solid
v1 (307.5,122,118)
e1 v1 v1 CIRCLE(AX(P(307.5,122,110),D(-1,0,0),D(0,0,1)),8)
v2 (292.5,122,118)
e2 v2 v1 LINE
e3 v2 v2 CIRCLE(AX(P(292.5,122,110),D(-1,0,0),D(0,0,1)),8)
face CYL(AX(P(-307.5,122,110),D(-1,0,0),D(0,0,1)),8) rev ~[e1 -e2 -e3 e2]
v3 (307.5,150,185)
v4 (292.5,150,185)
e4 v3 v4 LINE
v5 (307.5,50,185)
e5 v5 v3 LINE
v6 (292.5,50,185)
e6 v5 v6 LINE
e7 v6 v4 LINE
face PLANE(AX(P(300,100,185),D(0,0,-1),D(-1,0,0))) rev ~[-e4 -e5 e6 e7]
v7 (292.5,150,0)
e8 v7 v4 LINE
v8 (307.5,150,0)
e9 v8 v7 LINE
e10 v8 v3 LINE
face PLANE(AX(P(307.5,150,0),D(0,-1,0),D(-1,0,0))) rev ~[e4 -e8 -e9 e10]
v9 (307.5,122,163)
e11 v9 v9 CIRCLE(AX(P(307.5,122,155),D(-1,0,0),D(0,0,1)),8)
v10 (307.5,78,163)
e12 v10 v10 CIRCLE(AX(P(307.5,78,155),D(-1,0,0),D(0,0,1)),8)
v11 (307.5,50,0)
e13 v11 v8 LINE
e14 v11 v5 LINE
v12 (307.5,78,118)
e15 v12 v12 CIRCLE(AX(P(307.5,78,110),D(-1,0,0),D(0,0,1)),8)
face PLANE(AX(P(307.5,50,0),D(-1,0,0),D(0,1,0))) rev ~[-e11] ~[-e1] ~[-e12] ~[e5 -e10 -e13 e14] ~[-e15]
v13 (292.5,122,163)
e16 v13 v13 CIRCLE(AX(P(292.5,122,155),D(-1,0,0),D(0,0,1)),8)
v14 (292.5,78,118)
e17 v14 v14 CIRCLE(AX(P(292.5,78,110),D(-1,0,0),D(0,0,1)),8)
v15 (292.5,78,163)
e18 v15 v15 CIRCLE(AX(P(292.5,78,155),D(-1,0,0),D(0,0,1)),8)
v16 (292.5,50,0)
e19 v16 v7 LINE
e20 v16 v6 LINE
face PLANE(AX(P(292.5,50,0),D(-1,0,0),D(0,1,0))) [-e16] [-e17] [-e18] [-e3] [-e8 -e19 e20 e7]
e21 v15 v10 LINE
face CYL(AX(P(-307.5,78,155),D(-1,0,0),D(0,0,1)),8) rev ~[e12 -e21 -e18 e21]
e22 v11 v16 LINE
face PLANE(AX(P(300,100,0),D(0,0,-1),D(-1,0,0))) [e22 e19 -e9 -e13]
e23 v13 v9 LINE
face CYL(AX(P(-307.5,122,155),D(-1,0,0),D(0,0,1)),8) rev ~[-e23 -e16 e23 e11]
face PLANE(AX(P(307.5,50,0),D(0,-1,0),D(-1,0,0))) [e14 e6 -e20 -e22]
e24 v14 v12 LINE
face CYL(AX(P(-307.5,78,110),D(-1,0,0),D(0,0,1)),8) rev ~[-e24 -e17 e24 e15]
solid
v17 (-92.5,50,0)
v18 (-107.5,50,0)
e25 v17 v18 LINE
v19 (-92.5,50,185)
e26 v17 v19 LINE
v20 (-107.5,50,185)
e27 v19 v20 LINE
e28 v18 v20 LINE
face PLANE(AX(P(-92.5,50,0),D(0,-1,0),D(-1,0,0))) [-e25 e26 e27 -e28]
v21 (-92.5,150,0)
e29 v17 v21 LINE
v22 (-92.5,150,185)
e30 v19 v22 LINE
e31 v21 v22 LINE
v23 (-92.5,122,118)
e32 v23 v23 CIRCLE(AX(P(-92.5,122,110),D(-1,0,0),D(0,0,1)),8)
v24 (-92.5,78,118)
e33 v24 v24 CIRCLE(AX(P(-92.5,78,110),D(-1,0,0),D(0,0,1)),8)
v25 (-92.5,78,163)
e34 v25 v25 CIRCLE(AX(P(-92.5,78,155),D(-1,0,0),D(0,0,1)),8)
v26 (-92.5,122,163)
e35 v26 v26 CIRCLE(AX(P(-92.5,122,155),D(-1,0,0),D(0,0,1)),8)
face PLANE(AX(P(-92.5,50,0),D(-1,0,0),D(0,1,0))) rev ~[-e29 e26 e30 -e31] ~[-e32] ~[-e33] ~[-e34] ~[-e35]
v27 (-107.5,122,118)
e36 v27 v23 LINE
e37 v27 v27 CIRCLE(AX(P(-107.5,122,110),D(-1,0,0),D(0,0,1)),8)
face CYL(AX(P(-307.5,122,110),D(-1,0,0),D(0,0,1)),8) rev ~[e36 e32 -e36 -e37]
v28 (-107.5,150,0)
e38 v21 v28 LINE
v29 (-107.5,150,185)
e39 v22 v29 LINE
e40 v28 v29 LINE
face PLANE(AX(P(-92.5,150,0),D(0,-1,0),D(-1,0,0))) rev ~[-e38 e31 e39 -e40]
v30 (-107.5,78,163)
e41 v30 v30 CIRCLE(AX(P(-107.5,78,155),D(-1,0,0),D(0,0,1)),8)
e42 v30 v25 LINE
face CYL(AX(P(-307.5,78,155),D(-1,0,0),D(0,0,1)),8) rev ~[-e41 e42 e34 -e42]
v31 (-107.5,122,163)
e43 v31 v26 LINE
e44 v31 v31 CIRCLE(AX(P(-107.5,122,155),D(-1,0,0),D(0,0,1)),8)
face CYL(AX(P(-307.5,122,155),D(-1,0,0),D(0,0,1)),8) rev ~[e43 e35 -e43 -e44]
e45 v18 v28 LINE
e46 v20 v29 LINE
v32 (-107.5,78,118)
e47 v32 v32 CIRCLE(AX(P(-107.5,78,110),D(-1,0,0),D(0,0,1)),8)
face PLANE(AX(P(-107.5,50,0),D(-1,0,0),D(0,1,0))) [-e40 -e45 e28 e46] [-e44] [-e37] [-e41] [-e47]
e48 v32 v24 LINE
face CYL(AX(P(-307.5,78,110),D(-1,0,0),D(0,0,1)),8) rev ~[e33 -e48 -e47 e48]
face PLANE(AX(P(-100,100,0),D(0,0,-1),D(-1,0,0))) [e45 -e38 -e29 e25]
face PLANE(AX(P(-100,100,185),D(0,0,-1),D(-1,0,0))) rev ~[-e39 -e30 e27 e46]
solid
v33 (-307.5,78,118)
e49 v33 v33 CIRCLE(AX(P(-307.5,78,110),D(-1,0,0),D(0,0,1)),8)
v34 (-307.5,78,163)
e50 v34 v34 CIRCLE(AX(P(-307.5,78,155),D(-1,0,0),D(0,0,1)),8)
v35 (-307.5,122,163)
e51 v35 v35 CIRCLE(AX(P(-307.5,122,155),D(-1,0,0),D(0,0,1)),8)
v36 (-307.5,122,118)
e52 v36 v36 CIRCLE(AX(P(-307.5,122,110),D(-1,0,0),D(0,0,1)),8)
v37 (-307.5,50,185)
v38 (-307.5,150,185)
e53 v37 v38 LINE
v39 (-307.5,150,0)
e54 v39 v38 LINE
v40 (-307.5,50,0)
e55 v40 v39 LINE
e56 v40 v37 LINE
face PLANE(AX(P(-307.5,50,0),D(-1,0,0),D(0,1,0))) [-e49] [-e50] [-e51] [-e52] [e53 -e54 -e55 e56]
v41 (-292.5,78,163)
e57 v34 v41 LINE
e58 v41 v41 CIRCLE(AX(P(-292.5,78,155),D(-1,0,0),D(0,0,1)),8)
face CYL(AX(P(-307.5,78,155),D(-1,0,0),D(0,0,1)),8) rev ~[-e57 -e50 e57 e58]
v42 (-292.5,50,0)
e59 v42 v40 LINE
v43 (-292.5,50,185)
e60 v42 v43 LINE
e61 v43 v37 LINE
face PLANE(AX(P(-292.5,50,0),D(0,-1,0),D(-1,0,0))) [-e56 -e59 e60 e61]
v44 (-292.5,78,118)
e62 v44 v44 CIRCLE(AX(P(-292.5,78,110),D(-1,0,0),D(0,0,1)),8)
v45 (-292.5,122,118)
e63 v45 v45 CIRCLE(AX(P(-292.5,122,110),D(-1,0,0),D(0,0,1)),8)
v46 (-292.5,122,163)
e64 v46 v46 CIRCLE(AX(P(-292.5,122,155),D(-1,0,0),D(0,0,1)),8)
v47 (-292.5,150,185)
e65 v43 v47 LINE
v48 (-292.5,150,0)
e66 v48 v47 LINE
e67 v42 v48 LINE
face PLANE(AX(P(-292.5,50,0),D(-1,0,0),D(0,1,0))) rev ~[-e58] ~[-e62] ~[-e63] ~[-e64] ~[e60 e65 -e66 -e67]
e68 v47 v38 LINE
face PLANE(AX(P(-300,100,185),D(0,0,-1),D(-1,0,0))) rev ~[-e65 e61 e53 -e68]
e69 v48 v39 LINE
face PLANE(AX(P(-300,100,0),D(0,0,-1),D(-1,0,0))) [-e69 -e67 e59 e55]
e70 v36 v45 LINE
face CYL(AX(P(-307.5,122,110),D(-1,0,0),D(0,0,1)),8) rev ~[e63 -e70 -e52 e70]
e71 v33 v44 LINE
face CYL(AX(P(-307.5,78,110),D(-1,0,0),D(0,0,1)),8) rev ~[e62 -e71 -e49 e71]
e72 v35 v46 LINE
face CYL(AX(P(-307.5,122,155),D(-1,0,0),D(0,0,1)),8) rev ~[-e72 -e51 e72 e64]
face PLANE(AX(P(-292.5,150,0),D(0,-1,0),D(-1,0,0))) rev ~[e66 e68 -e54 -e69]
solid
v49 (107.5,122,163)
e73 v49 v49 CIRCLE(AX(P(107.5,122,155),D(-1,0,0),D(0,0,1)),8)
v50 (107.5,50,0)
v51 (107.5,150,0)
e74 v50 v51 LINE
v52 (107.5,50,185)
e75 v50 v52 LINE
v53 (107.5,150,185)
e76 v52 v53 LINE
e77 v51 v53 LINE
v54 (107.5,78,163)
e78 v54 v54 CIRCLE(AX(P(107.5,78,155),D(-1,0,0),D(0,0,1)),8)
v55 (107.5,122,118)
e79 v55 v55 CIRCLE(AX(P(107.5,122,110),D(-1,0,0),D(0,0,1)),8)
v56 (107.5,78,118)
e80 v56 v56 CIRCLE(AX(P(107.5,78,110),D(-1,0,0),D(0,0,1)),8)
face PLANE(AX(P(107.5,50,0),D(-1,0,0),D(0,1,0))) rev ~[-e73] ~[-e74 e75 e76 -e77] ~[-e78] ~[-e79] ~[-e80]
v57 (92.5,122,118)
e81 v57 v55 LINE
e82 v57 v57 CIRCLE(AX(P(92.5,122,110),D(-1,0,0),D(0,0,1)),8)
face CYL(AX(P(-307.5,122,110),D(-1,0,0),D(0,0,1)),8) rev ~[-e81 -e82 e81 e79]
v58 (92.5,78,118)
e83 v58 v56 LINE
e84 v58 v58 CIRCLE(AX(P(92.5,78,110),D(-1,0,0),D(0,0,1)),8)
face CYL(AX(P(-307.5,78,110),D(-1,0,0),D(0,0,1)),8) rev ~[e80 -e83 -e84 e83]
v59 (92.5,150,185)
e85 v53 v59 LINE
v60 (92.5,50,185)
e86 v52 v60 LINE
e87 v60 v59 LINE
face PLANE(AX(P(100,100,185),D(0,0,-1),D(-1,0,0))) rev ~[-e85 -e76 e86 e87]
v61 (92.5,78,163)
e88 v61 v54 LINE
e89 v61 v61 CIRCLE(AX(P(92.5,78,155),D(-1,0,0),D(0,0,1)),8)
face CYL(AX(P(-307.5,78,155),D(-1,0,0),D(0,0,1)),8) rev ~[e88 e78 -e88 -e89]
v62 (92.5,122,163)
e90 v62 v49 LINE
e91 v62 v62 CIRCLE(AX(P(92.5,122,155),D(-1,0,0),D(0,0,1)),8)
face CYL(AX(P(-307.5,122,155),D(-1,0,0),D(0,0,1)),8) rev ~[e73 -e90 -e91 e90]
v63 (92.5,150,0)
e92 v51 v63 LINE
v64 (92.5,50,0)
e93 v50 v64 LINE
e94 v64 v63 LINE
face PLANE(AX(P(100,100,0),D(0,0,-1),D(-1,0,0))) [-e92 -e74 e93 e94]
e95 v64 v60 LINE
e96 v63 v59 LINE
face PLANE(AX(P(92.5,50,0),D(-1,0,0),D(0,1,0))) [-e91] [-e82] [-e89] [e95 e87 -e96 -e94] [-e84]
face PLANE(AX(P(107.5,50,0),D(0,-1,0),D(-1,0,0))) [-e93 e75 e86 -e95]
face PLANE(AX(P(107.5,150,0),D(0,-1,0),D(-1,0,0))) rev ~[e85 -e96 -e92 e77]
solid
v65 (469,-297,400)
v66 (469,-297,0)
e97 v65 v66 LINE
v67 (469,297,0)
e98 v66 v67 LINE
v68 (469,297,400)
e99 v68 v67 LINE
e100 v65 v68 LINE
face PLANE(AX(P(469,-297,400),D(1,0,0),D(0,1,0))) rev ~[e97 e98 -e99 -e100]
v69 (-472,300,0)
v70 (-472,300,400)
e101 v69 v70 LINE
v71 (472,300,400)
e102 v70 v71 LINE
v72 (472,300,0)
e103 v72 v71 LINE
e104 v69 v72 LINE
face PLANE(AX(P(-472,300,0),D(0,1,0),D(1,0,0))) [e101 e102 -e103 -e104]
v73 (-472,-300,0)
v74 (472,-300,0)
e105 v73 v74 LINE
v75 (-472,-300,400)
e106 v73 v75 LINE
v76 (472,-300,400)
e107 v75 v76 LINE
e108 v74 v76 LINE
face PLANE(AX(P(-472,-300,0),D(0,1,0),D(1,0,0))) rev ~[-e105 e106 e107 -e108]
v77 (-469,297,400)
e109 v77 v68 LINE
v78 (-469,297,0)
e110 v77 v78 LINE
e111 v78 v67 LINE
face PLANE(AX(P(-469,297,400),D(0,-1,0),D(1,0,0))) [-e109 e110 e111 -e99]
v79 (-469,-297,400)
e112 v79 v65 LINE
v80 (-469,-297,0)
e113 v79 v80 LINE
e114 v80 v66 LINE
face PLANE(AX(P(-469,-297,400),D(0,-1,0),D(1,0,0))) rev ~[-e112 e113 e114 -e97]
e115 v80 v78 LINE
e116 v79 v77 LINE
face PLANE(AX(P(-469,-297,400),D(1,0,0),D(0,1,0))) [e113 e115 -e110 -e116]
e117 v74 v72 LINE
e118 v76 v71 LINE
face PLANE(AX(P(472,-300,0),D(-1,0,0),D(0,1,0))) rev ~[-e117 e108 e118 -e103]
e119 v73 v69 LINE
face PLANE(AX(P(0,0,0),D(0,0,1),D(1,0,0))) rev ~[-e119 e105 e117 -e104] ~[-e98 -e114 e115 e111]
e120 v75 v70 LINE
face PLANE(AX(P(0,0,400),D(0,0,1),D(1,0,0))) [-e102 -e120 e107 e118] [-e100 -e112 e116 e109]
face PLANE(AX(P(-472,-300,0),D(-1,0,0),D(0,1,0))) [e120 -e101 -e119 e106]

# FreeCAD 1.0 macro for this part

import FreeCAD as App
import Part
import Sketcher

V = App.Vector

doc = App.newDocument("Part")
body = doc.addObject("PartDesign::Body", "Body")

sketch1 = doc.addObject("Sketcher::SketchObject", "Sketch")
body.addObject(sketch1)
sketch1.AttachmentSupport = (doc.XY_Plane, [""])
sketch1.MapMode = "FlatFace"
sketch1.addGeometry([
    Part.LineSegment(V(-472, 300, 0), V(-472, -300, 0)),
    Part.LineSegment(V(-472, -300, 0), V(472, -300, 0)),
    Part.LineSegment(V(472, -300, 0), V(472, 300, 0)),
    Part.LineSegment(V(472, 300, 0), V(-472, 300, 0)),
], False)
sketch1.addConstraint([
    Sketcher.Constraint("Coincident", 0, 2, 1, 1),
    Sketcher.Constraint("Coincident", 1, 2, 2, 1),
    Sketcher.Constraint("Coincident", 2, 2, 3, 1),
    Sketcher.Constraint("Coincident", 3, 2, 0, 1),
    Sketcher.Constraint("Vertical", 0),
    Sketcher.Constraint("Horizontal", 1),
    Sketcher.Constraint("Vertical", 2),
    Sketcher.Constraint("Horizontal", 3),
    Sketcher.Constraint("Symmetric", 0, 2, 2, 2, -1, 1),
    Sketcher.Constraint("DistanceX", 1, 1, 1, 2, 944.0),
    Sketcher.Constraint("DistanceY", 0, 2, 0, 1, 600.0),
])
pad1 = doc.addObject("PartDesign::Pad", "Pad")
body.addObject(pad1)
pad1.Profile = sketch1
pad1.Length = 400

sketch2 = doc.addObject("Sketcher::SketchObject", "Sketch001")
body.addObject(sketch2)
sketch2.AttachmentSupport = (doc.XY_Plane, [""])
sketch2.MapMode = "FlatFace"
sketch2.AttachmentOffset = App.Placement(V(0, 0, 400), App.Rotation())
sketch2.addGeometry([
    Part.LineSegment(V(-469, 297, 0), V(-469, -297, 0)),
    Part.LineSegment(V(-469, -297, 0), V(469, -297, 0)),
    Part.LineSegment(V(469, -297, 0), V(469, 297, 0)),
    Part.LineSegment(V(469, 297, 0), V(-469, 297, 0)),
], False)
sketch2.addConstraint([
    Sketcher.Constraint("Coincident", 0, 2, 1, 1),
    Sketcher.Constraint("Coincident", 1, 2, 2, 1),
    Sketcher.Constraint("Coincident", 2, 2, 3, 1),
    Sketcher.Constraint("Coincident", 3, 2, 0, 1),
    Sketcher.Constraint("Vertical", 0),
    Sketcher.Constraint("Horizontal", 1),
    Sketcher.Constraint("Vertical", 2),
    Sketcher.Constraint("Horizontal", 3),
    Sketcher.Constraint("Symmetric", 0, 2, 2, 2, -1, 1),
    Sketcher.Constraint("DistanceX", 1, 1, 1, 2, 938.0),
    Sketcher.Constraint("DistanceY", 0, 2, 0, 1, 594.0),
])
pocket1 = doc.addObject("PartDesign::Pocket", "Pocket")
body.addObject(pocket1)
pocket1.Profile = sketch2
pocket1.Length = 400
body2 = doc.addObject("PartDesign::Body", "Body001")

sketch3 = doc.addObject("Sketcher::SketchObject", "Sketch002")
body2.addObject(sketch3)
sketch3.AttachmentSupport = (doc.getObject("XY_Plane001"), [""])
sketch3.MapMode = "FlatFace"
sketch3.addGeometry([
    Part.LineSegment(V(308, 150, 0), V(308, 50, 0)),
    Part.LineSegment(V(308, 50, 0), V(292, 50, 0)),
    Part.LineSegment(V(292, 50, 0), V(292, 150, 0)),
    Part.LineSegment(V(292, 150, 0), V(308, 150, 0)),
], False)
sketch3.addConstraint([
    Sketcher.Constraint("Coincident", 0, 2, 1, 1),
    Sketcher.Constraint("Coincident", 1, 2, 2, 1),
    Sketcher.Constraint("Coincident", 2, 2, 3, 1),
    Sketcher.Constraint("Coincident", 3, 2, 0, 1),
    Sketcher.Constraint("Vertical", 0),
    Sketcher.Constraint("Horizontal", 1),
    Sketcher.Constraint("Vertical", 2),
    Sketcher.Constraint("Horizontal", 3),
    Sketcher.Constraint("DistanceX", 1, 2, 1, 1, 15.0),
    Sketcher.Constraint("DistanceY", 0, 2, 0, 1, 100.0),
    Sketcher.Constraint("DistanceY", -1, 1, 0, 2, 50.0),
    Sketcher.Constraint("DistanceX", -1, 1, 0, 2, 307.5),
])
pad2 = doc.addObject("PartDesign::Pad", "Pad001")
body2.addObject(pad2)
pad2.Profile = sketch3
pad2.Length = 185
body3 = doc.addObject("PartDesign::Body", "Body002")

sketch4 = doc.addObject("Sketcher::SketchObject", "Sketch003")
body3.addObject(sketch4)
sketch4.AttachmentSupport = (doc.getObject("XY_Plane002"), [""])
sketch4.MapMode = "FlatFace"
sketch4.addGeometry([
    Part.LineSegment(V(108, 150, 0), V(108, 50, 0)),
    Part.LineSegment(V(108, 50, 0), V(92, 50, 0)),
    Part.LineSegment(V(92, 50, 0), V(92, 150, 0)),
    Part.LineSegment(V(92, 150, 0), V(108, 150, 0)),
], False)
sketch4.addConstraint([
    Sketcher.Constraint("Coincident", 0, 2, 1, 1),
    Sketcher.Constraint("Coincident", 1, 2, 2, 1),
    Sketcher.Constraint("Coincident", 2, 2, 3, 1),
    Sketcher.Constraint("Coincident", 3, 2, 0, 1),
    Sketcher.Constraint("Vertical", 0),
    Sketcher.Constraint("Horizontal", 1),
    Sketcher.Constraint("Vertical", 2),
    Sketcher.Constraint("Horizontal", 3),
    Sketcher.Constraint("DistanceX", 1, 2, 1, 1, 15.0),
    Sketcher.Constraint("DistanceY", 0, 2, 0, 1, 100.0),
    Sketcher.Constraint("DistanceY", -1, 1, 0, 2, 50.0),
    Sketcher.Constraint("DistanceX", -1, 1, 0, 2, 107.5),
])
pad3 = doc.addObject("PartDesign::Pad", "Pad002")
body3.addObject(pad3)
pad3.Profile = sketch4
pad3.Length = 185
body4 = doc.addObject("PartDesign::Body", "Body003")

sketch5 = doc.addObject("Sketcher::SketchObject", "Sketch004")
body4.addObject(sketch5)
sketch5.AttachmentSupport = (doc.getObject("XY_Plane003"), [""])
sketch5.MapMode = "FlatFace"
sketch5.addGeometry([
    Part.LineSegment(V(-92, 150, 0), V(-92, 50, 0)),
    Part.LineSegment(V(-92, 50, 0), V(-108, 50, 0)),
    Part.LineSegment(V(-108, 50, 0), V(-108, 150, 0)),
    Part.LineSegment(V(-108, 150, 0), V(-92, 150, 0)),
], False)
sketch5.addConstraint([
    Sketcher.Constraint("Coincident", 0, 2, 1, 1),
    Sketcher.Constraint("Coincident", 1, 2, 2, 1),
    Sketcher.Constraint("Coincident", 2, 2, 3, 1),
    Sketcher.Constraint("Coincident", 3, 2, 0, 1),
    Sketcher.Constraint("Vertical", 0),
    Sketcher.Constraint("Horizontal", 1),
    Sketcher.Constraint("Vertical", 2),
    Sketcher.Constraint("Horizontal", 3),
    Sketcher.Constraint("DistanceX", 1, 2, 1, 1, 15.0),
    Sketcher.Constraint("DistanceY", 0, 2, 0, 1, 100.0),
    Sketcher.Constraint("DistanceY", -1, 1, 0, 2, 50.0),
    Sketcher.Constraint("DistanceX", 0, 2, -1, 1, 92.5),
])
pad4 = doc.addObject("PartDesign::Pad", "Pad003")
body4.addObject(pad4)
pad4.Profile = sketch5
pad4.Length = 185
body5 = doc.addObject("PartDesign::Body", "Body004")

sketch6 = doc.addObject("Sketcher::SketchObject", "Sketch005")
body5.addObject(sketch6)
sketch6.AttachmentSupport = (doc.getObject("XY_Plane004"), [""])
sketch6.MapMode = "FlatFace"
sketch6.addGeometry([
    Part.LineSegment(V(-292, 150, 0), V(-292, 50, 0)),
    Part.LineSegment(V(-292, 50, 0), V(-308, 50, 0)),
    Part.LineSegment(V(-308, 50, 0), V(-308, 150, 0)),
    Part.LineSegment(V(-308, 150, 0), V(-292, 150, 0)),
], False)
sketch6.addConstraint([
    Sketcher.Constraint("Coincident", 0, 2, 1, 1),
    Sketcher.Constraint("Coincident", 1, 2, 2, 1),
    Sketcher.Constraint("Coincident", 2, 2, 3, 1),
    Sketcher.Constraint("Coincident", 3, 2, 0, 1),
    Sketcher.Constraint("Vertical", 0),
    Sketcher.Constraint("Horizontal", 1),
    Sketcher.Constraint("Vertical", 2),
    Sketcher.Constraint("Horizontal", 3),
    Sketcher.Constraint("DistanceX", 1, 2, 1, 1, 15.0),
    Sketcher.Constraint("DistanceY", 0, 2, 0, 1, 100.0),
    Sketcher.Constraint("DistanceY", -1, 1, 0, 2, 50.0),
    Sketcher.Constraint("DistanceX", 0, 2, -1, 1, 292.5),
])
pad5 = doc.addObject("PartDesign::Pad", "Pad004")
body5.addObject(pad5)
pad5.Profile = sketch6
pad5.Length = 185
body6 = doc.addObject("PartDesign::Body", "Body005")
body6.AllowCompound = True

sketch7 = doc.addObject("Sketcher::SketchObject", "Sketch006")
body6.addObject(sketch7)
sketch7.AttachmentSupport = (doc.getObject("YZ_Plane005"), [""])
sketch7.MapMode = "FlatFace"
sketch7.AttachmentOffset = App.Placement(V(0, 0, -307.5), App.Rotation())
sketch7.addGeometry([
    Part.Circle(V(122, 155, 0), V(0, 0, 1), 8),
    Part.Circle(V(78, 155, 0), V(0, 0, 1), 8),
    Part.Circle(V(122, 110, 0), V(0, 0, 1), 8),
    Part.Circle(V(78, 110, 0), V(0, 0, 1), 8),
], False)
sketch7.addConstraint([
    Sketcher.Constraint("Equal", 0, 1),
    Sketcher.Constraint("Equal", 1, 2),
    Sketcher.Constraint("Equal", 2, 3),
    Sketcher.Constraint("Horizontal", 0, 3, 1, 3),
    Sketcher.Constraint("Horizontal", 2, 3, 3, 3),
    Sketcher.Constraint("Vertical", 0, 3, 2, 3),
    Sketcher.Constraint("Vertical", 1, 3, 3, 3),
    Sketcher.Constraint("Diameter", 0, 16.0),
    Sketcher.Constraint("DistanceX", -1, 1, 0, 3, 122.0),
    Sketcher.Constraint("DistanceY", -1, 1, 0, 3, 155.0),
    Sketcher.Constraint("DistanceX", -1, 1, 1, 3, 78.0),
    Sketcher.Constraint("DistanceY", -1, 1, 2, 3, 110.0),
])
pad6 = doc.addObject("PartDesign::Pad", "Pad005")
body6.addObject(pad6)
pad6.Profile = sketch7
pad6.Length = 615
doc.recompute()

body7 = doc.addObject("PartDesign::Body", "Body006")
body7.BaseFeature = body6
boolean = doc.addObject("PartDesign::Boolean", "Boolean")
body2.addObject(boolean)
boolean.Type = "Cut"
boolean.addObjects([body7])
doc.recompute()

body8 = doc.addObject("PartDesign::Body", "Body007")
body8.BaseFeature = body6
boolean2 = doc.addObject("PartDesign::Boolean", "Boolean001")
body3.addObject(boolean2)
boolean2.Type = "Cut"
boolean2.addObjects([body8])
doc.recompute()

body9 = doc.addObject("PartDesign::Body", "Body008")
body9.BaseFeature = body6
boolean3 = doc.addObject("PartDesign::Boolean", "Boolean002")
body4.addObject(boolean3)
boolean3.Type = "Cut"
boolean3.addObjects([body9])
doc.recompute()

boolean4 = doc.addObject("PartDesign::Boolean", "Boolean003")
body5.addObject(boolean4)
boolean4.Type = "Cut"
boolean4.addObjects([body6])

doc.recompute()
